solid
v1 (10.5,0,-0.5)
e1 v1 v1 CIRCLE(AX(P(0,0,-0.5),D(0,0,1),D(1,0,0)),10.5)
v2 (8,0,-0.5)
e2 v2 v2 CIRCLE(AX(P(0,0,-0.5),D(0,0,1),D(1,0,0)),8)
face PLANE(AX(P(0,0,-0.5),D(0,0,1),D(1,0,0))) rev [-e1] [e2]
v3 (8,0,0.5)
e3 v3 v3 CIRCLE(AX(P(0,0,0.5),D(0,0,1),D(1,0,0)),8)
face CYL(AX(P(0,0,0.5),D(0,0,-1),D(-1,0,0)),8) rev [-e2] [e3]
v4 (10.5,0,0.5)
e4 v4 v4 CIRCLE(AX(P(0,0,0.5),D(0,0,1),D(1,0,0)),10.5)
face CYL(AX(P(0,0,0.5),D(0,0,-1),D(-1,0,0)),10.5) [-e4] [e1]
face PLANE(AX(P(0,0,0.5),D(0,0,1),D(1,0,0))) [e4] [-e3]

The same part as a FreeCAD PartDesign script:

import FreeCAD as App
import Part
import Sketcher
Q = App.Units.Quantity

doc = App.newDocument("Part")
params = doc.addObject("Spreadsheet::Sheet", "Params")
for row, (alias, value) in enumerate([
    ("sketch1_diameter", "21 mm"),
    ("sketch1_diameter2", "16 mm"),
    ("pad1_length", "1 mm"),
], start=1):
    params.set(f"A{row}", alias)
    params.set(f"B{row}", "=" + value)
    params.setAlias(f"B{row}", alias)

body = doc.addObject("PartDesign::Body", "Body")

sketch1 = body.newObject("Sketcher::SketchObject", "Sketch")
sketch1.AttachmentSupport = (doc.getObject("XY_Plane"), [""])
sketch1.MapMode = "FlatFace"
sketch1.addGeometry([
    Part.Circle(App.Vector(0, 0, 0), App.Vector(0, 0, 1), 10),
    Part.Circle(App.Vector(0, 0, 0), App.Vector(0, 0, 1), 8),
], False)
sketch1.addConstraint([
    Sketcher.Constraint("Coincident", 0, 3, -1, 1),
    Sketcher.Constraint("Coincident", 1, 3, -1, 1),
    Sketcher.Constraint("Diameter", 0, Q("21 mm")),
    Sketcher.Constraint("Diameter", 1, Q("16 mm")),
])
sketch1.setExpression("Constraints[2]", "Params.sketch1_diameter")
sketch1.setExpression("Constraints[3]", "Params.sketch1_diameter2")
pad1 = body.newObject("PartDesign::Pad", "Pad")
pad1.Profile = sketch1
pad1.setExpression("Length", "Params.pad1_length")
pad1.Midplane = True

doc.recompute()
